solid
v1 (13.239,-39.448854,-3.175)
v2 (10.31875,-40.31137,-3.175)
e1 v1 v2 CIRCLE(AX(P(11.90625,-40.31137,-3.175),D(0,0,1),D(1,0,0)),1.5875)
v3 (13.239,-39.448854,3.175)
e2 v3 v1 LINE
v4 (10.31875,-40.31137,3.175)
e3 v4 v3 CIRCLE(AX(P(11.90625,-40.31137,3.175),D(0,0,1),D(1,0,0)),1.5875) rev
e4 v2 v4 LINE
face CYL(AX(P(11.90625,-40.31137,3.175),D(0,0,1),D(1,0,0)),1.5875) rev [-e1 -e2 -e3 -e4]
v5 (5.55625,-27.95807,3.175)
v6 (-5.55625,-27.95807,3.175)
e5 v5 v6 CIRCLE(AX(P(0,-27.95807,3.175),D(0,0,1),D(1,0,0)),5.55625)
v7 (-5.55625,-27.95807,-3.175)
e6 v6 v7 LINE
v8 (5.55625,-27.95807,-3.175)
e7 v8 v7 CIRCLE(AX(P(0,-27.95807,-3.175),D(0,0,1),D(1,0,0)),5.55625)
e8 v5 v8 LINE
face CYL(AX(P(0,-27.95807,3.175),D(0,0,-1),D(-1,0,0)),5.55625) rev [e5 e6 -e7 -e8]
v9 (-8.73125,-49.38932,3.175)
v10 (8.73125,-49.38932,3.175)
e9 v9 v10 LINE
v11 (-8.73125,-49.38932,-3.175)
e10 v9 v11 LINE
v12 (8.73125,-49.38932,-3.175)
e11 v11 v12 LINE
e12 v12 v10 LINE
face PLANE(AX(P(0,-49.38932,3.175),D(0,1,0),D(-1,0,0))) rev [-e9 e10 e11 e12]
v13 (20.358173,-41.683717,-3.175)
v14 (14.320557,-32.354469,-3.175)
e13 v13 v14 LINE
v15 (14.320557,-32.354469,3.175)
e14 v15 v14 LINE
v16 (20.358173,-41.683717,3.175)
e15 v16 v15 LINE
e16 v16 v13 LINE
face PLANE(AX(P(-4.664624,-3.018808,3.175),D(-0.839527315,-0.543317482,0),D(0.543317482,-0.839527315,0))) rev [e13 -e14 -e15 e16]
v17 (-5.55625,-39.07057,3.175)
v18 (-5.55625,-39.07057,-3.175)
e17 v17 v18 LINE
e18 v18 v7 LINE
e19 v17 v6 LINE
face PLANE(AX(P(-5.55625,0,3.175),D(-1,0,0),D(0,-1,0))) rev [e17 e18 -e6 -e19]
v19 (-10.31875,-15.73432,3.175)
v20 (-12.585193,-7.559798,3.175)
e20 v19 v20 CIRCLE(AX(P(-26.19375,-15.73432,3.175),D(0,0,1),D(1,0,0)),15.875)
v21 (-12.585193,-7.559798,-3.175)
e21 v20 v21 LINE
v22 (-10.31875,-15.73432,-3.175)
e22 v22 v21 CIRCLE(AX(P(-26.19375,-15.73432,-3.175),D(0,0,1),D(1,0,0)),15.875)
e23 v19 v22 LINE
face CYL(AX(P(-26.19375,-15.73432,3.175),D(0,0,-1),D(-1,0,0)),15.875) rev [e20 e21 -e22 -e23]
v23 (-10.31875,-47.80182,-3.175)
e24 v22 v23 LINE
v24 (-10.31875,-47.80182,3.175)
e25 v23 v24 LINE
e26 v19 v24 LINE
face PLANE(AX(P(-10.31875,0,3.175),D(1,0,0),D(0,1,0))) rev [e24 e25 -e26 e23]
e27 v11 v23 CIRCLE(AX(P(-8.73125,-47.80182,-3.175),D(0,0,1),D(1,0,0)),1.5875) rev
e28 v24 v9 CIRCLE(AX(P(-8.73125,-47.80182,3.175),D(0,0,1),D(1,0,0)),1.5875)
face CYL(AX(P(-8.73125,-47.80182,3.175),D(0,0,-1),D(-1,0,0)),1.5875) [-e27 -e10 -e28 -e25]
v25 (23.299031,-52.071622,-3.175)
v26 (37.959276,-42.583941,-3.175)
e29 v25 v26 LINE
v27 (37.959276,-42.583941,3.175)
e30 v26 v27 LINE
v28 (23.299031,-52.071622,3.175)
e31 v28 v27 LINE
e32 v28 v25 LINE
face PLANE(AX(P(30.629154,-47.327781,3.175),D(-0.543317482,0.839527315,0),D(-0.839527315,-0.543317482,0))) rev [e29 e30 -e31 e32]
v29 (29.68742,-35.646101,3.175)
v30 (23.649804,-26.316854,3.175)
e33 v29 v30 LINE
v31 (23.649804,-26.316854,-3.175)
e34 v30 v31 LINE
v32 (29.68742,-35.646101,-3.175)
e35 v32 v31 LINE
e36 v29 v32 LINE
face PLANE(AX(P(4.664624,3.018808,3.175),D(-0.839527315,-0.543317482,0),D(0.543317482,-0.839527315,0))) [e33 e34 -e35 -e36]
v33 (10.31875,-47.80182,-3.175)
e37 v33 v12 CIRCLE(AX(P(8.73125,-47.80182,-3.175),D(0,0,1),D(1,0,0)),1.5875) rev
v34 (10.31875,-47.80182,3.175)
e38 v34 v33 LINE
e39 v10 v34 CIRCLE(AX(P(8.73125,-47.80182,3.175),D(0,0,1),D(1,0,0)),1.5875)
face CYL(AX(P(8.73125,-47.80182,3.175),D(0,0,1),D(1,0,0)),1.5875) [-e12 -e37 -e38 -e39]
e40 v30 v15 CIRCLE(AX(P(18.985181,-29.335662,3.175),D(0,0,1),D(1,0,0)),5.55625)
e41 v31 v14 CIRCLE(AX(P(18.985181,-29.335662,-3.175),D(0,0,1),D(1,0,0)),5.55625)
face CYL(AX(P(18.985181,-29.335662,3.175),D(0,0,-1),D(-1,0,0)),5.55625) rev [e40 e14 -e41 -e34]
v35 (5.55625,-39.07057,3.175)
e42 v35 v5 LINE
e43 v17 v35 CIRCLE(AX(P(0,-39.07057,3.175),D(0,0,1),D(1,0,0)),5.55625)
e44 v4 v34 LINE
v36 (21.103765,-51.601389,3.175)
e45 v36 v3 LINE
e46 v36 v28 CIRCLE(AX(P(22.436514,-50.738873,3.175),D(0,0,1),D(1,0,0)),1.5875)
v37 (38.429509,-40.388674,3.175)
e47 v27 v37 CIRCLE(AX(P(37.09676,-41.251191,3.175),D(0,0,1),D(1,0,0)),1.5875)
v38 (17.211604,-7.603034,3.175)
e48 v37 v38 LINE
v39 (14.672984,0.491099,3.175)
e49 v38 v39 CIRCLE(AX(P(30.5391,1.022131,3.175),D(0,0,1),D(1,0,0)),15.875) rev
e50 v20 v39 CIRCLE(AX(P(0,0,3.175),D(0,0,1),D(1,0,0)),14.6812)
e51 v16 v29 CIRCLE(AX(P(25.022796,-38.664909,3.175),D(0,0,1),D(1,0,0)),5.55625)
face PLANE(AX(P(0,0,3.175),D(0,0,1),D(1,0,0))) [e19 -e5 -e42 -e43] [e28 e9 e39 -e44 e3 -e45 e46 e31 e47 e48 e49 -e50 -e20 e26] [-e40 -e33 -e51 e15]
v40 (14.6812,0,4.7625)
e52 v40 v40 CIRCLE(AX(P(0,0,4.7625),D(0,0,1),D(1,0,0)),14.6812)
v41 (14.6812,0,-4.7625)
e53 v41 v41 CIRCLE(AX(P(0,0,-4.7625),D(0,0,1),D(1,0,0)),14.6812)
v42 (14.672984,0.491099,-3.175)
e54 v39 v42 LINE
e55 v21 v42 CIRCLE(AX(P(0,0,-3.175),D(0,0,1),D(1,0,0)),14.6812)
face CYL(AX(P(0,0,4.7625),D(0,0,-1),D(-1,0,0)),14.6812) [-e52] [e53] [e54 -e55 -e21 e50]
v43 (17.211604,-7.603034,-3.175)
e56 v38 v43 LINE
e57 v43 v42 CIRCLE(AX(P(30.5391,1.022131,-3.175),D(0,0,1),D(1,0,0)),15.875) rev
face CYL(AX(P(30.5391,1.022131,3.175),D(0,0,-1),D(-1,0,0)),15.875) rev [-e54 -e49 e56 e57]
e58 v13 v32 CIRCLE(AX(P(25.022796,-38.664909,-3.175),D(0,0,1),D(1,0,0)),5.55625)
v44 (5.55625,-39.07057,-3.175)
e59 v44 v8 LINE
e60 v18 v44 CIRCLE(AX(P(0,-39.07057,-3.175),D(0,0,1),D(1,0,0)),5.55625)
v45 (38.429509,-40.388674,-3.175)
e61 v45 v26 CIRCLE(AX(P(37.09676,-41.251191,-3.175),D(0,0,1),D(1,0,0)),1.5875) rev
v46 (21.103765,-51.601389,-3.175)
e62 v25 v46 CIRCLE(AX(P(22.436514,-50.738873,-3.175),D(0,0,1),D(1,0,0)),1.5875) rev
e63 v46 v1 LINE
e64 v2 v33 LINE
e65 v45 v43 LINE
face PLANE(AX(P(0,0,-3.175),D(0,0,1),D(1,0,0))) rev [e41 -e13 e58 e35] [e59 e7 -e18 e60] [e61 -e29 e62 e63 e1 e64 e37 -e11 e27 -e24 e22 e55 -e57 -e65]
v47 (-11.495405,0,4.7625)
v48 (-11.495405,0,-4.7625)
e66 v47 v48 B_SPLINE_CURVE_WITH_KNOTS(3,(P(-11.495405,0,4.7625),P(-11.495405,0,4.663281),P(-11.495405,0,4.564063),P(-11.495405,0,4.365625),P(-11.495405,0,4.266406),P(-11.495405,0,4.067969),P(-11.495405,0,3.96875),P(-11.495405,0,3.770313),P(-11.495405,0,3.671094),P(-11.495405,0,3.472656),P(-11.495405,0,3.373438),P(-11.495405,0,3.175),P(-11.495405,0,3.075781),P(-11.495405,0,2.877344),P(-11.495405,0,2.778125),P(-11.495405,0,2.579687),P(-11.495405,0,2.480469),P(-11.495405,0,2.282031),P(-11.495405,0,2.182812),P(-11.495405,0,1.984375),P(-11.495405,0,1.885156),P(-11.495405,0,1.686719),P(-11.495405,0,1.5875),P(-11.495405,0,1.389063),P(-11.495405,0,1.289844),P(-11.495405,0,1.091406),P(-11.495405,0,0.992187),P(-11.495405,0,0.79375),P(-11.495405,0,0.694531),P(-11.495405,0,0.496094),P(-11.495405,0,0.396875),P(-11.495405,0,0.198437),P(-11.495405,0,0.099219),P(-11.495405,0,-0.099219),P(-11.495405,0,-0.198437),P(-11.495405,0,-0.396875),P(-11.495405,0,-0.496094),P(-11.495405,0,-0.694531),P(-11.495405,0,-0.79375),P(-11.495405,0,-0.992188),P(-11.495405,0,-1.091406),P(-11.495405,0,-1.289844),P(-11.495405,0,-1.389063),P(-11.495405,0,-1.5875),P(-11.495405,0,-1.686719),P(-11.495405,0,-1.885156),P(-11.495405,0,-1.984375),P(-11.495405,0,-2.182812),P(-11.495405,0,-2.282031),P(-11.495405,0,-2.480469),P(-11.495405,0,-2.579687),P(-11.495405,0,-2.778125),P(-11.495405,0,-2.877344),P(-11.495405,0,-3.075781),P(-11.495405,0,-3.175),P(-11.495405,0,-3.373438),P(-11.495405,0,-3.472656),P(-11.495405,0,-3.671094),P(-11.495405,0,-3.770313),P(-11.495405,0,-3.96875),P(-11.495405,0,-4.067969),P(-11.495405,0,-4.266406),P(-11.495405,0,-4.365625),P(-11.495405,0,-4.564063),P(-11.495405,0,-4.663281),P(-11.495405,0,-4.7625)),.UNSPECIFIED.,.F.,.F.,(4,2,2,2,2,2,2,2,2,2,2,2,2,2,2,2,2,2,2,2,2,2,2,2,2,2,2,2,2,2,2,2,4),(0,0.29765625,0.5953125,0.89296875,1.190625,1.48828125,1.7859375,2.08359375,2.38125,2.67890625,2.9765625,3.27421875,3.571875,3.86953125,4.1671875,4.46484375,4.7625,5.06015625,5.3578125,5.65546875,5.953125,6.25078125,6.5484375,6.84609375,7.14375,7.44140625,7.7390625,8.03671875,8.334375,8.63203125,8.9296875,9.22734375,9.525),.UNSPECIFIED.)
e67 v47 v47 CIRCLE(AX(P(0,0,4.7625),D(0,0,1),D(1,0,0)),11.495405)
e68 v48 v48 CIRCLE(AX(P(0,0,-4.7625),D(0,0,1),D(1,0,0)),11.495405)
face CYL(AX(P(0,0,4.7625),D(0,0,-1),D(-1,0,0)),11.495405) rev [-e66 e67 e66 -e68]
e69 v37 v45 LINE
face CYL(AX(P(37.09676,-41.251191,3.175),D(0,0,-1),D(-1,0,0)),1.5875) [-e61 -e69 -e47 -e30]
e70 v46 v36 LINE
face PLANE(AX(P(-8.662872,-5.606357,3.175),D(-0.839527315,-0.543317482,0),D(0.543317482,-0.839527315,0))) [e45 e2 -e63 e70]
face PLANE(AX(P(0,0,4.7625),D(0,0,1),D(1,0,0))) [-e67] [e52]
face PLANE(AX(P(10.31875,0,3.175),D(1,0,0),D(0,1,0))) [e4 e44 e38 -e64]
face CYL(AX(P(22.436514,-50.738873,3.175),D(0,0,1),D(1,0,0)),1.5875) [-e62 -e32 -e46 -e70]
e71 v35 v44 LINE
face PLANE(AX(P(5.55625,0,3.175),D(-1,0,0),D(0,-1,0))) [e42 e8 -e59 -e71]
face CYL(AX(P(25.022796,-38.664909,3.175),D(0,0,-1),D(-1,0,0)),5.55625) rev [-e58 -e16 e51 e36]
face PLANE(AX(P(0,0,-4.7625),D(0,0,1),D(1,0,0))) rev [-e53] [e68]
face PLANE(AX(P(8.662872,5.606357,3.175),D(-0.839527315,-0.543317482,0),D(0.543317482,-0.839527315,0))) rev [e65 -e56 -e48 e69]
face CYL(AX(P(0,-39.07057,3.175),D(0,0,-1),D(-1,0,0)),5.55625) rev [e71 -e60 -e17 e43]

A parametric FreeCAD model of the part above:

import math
import FreeCAD as App
import Part
import Sketcher
Q = App.Units.Quantity


def edges_at(feature, points):
    """Names of the edges that pass closest to the given points."""
    edges = feature.Shape.Edges
    near = lambda p: min(range(len(edges)), key=lambda i: edges[i].distToShape(Part.Vertex(*p))[0])
    return sorted({f"Edge{near(p) + 1}" for p in points})

doc = App.newDocument("Part")
body = doc.addObject("PartDesign::Body", "Body")

sketch1 = body.newObject("Sketcher::SketchObject", "Sketch")
sketch1.AttachmentSupport = (doc.getObject("XY_Plane"), [""])
sketch1.MapMode = "FlatFace"
sketch1.addGeometry([
    Part.ArcOfCircle(Part.Circle(App.Vector(0, 0, 0), App.Vector(0, 0, 1), 14.6812), math.radians(1.91695), math.radians(210.992811)),
    Part.ArcOfCircle(Part.Circle(App.Vector(0, 0, 0), App.Vector(0, 0, 1), 14.6812), math.radians(-149.007189), math.radians(1.91695)),
    Part.Circle(App.Vector(0, 0, 0), App.Vector(0, 0, 1), 11.495405),
], False)
sketch1.addConstraint([
    Sketcher.Constraint("Tangent", 0, 1, 1, 2),
    Sketcher.Constraint("Coincident", 1, 1, 0, 2),
    Sketcher.Constraint("Coincident", 0, 3, -1, 1),
    Sketcher.Constraint("Coincident", 2, 3, -1, 1),
    Sketcher.Constraint("Radius", 0, Q("0.578 in")),
    Sketcher.Constraint("Diameter", 2, Q("22.99081 mm")),
    Sketcher.Constraint("DistanceY", -1, 1, 0, 1, Q("0.491099 mm")),
    Sketcher.Constraint("DistanceX", 1, 1, -1, 1, Q("12.585193 mm")),
])
pad1 = body.newObject("PartDesign::Pad", "Pad")
pad1.Profile = sketch1
pad1.Length = Q("0.375 in")
pad1.Midplane = True

sketch2 = body.newObject("Sketcher::SketchObject", "Sketch001")
sketch2.AttachmentSupport = (doc.getObject("XY_Plane"), [""])
sketch2.MapMode = "FlatFace"
sketch2.addGeometry([
    Part.ArcOfCircle(Part.Circle(App.Vector(-26.19375, -15.73432, 0), App.Vector(0, 0, 1), 15.875), math.radians(0), math.radians(30.992811)),
    Part.LineSegment(App.Vector(-10.31875, -15.73432, 0), App.Vector(-10.31875, -49.38932, 0)),
    Part.LineSegment(App.Vector(-10.31875, -49.38932, 0), App.Vector(10.31875, -49.38932, 0)),
    Part.LineSegment(App.Vector(10.31875, -49.38932, 0), App.Vector(10.31875, -34.936521, 0)),
    Part.LineSegment(App.Vector(10.31875, -34.936521, 0), App.Vector(21.966281, -52.934139, 0)),
    Part.LineSegment(App.Vector(21.966281, -52.934139, 0), App.Vector(39.292026, -41.721424, 0)),
    Part.LineSegment(App.Vector(39.292026, -41.721424, 0), App.Vector(17.211604, -7.603034, 0)),
    Part.ArcOfCircle(Part.Circle(App.Vector(30.5391, 1.022131, 0), App.Vector(0, 0, 1), 15.875), math.radians(-178.08305), math.radians(-147.090239)),
    Part.ArcOfCircle(Part.Circle(App.Vector(0, 0, 0), App.Vector(0, 0, 1), 14.6812), math.radians(-149.007189), math.radians(1.91695)),
    Part.LineSegment(App.Vector(23.649804, -26.316854, 0), App.Vector(29.68742, -35.646101, 0)),
    Part.ArcOfCircle(Part.Circle(App.Vector(25.022796, -38.664909, 0), App.Vector(0, 0, 1), 5.55625), math.radians(-147.090239), math.radians(32.909761)),
    Part.LineSegment(App.Vector(20.358173, -41.683717, 0), App.Vector(14.320557, -32.354469, 0)),
    Part.ArcOfCircle(Part.Circle(App.Vector(18.985181, -29.335662, 0), App.Vector(0, 0, 1), 5.55625), math.radians(32.909761), math.radians(212.909761)),
    Part.LineSegment(App.Vector(5.55625, -27.95807, 0), App.Vector(5.55625, -39.07057, 0)),
    Part.ArcOfCircle(Part.Circle(App.Vector(0, -39.07057, 0), App.Vector(0, 0, 1), 5.55625), math.radians(180), math.radians(360)),
    Part.LineSegment(App.Vector(-5.55625, -39.07057, 0), App.Vector(-5.55625, -27.95807, 0)),
    Part.ArcOfCircle(Part.Circle(App.Vector(0, -27.95807, 0), App.Vector(0, 0, 1), 5.55625), math.radians(0), math.radians(180)),
], False)
sketch2.addConstraint([
    Sketcher.Constraint("Tangent", 0, 1, 1, 1),
    Sketcher.Constraint("Coincident", 1, 2, 2, 1),
    Sketcher.Constraint("Coincident", 2, 2, 3, 1),
    Sketcher.Constraint("Coincident", 3, 2, 4, 1),
    Sketcher.Constraint("Coincident", 4, 2, 5, 1),
    Sketcher.Constraint("Coincident", 5, 2, 6, 1),
    Sketcher.Constraint("Tangent", 6, 2, 7, 2),
    Sketcher.Constraint("Tangent", 7, 1, 8, 2),
    Sketcher.Constraint("Tangent", 8, 1, 0, 2),
    Sketcher.Constraint("Tangent", 9, 2, 10, 2),
    Sketcher.Constraint("Tangent", 10, 1, 11, 1),
    Sketcher.Constraint("Tangent", 11, 2, 12, 2),
    Sketcher.Constraint("Tangent", 12, 1, 9, 1),
    Sketcher.Constraint("Tangent", 13, 2, 14, 2),
    Sketcher.Constraint("Tangent", 14, 1, 15, 1),
    Sketcher.Constraint("Tangent", 15, 2, 16, 2),
    Sketcher.Constraint("Tangent", 16, 1, 13, 1),
    Sketcher.Constraint("Vertical", 1),
    Sketcher.Constraint("Horizontal", 2),
    Sketcher.Constraint("Vertical", 3),
    Sketcher.Constraint("Vertical", 13),
    Sketcher.Constraint("Vertical", 15),
    Sketcher.Constraint("Coincident", 8, 3, -1, 1),
    Sketcher.Constraint("Equal", 0, 7),
    Sketcher.Constraint("Equal", 10, 12),
    Sketcher.Constraint("Equal", 12, 14),
    Sketcher.Constraint("PointOnObject", 14, 3, -2),
    Sketcher.Constraint("Perpendicular", 4, 5),
    Sketcher.Constraint("Perpendicular", 5, 6),
    Sketcher.Constraint("Parallel", 6, 9),
    Sketcher.Constraint("Radius", 0, Q("0.625 in")),
    Sketcher.Constraint("Radius", 8, Q("0.578 in")),
    Sketcher.Constraint("Radius", 10, Q("0.21875 in")),
    Sketcher.Constraint("Distance", 6, Q("1.6 in")),
    Sketcher.Constraint("DistanceX", 2, 1, 2, 2, Q("0.8125 in")),
    Sketcher.Constraint("DistanceY", 1, 2, 1, 1, Q("1.325 in")),
    Sketcher.Constraint("DistanceY", 13, 2, 13, 1, Q("0.4375 in")),
    Sketcher.Constraint("Distance", 5, Q("0.8125 in")),
    Sketcher.Constraint("Distance", 9, Q("0.4375 in")),
    Sketcher.Constraint("DistanceX", 0, 3, -1, 1, Q("1.03125 in")),
    Sketcher.Constraint("DistanceY", 1, 2, 14, 3, Q("0.40625 in")),
    Sketcher.Constraint("DistanceY", 3, 1, 3, 2, Q("14.452799 mm")),
    Sketcher.Constraint("Distance", 4, Q("21.437799 mm")),
    Sketcher.Constraint("DistanceY", 9, 2, -1, 1, Q("35.646101 mm")),
    Sketcher.Constraint("DistanceX", 12, 3, 4, 2, Q("2.9811 mm")),
])
pad2 = body.newObject("PartDesign::Pad", "Pad001")
pad2.Profile = sketch2
pad2.Length = Q("0.25 in")
pad2.Midplane = True
doc.recompute()

fillet = body.newObject("PartDesign::Fillet", "Fillet")
fillet.Base = (pad2, edges_at(pad2, [
    (-10.319, -49.389, 0),
    (10.319, -49.389, 0),
    (10.319, -34.937, 0),
    (21.966, -52.934, 0),
    (39.292, -41.721, 0),
]))
fillet.Radius = Q("0.0625 in")

doc.recompute()
